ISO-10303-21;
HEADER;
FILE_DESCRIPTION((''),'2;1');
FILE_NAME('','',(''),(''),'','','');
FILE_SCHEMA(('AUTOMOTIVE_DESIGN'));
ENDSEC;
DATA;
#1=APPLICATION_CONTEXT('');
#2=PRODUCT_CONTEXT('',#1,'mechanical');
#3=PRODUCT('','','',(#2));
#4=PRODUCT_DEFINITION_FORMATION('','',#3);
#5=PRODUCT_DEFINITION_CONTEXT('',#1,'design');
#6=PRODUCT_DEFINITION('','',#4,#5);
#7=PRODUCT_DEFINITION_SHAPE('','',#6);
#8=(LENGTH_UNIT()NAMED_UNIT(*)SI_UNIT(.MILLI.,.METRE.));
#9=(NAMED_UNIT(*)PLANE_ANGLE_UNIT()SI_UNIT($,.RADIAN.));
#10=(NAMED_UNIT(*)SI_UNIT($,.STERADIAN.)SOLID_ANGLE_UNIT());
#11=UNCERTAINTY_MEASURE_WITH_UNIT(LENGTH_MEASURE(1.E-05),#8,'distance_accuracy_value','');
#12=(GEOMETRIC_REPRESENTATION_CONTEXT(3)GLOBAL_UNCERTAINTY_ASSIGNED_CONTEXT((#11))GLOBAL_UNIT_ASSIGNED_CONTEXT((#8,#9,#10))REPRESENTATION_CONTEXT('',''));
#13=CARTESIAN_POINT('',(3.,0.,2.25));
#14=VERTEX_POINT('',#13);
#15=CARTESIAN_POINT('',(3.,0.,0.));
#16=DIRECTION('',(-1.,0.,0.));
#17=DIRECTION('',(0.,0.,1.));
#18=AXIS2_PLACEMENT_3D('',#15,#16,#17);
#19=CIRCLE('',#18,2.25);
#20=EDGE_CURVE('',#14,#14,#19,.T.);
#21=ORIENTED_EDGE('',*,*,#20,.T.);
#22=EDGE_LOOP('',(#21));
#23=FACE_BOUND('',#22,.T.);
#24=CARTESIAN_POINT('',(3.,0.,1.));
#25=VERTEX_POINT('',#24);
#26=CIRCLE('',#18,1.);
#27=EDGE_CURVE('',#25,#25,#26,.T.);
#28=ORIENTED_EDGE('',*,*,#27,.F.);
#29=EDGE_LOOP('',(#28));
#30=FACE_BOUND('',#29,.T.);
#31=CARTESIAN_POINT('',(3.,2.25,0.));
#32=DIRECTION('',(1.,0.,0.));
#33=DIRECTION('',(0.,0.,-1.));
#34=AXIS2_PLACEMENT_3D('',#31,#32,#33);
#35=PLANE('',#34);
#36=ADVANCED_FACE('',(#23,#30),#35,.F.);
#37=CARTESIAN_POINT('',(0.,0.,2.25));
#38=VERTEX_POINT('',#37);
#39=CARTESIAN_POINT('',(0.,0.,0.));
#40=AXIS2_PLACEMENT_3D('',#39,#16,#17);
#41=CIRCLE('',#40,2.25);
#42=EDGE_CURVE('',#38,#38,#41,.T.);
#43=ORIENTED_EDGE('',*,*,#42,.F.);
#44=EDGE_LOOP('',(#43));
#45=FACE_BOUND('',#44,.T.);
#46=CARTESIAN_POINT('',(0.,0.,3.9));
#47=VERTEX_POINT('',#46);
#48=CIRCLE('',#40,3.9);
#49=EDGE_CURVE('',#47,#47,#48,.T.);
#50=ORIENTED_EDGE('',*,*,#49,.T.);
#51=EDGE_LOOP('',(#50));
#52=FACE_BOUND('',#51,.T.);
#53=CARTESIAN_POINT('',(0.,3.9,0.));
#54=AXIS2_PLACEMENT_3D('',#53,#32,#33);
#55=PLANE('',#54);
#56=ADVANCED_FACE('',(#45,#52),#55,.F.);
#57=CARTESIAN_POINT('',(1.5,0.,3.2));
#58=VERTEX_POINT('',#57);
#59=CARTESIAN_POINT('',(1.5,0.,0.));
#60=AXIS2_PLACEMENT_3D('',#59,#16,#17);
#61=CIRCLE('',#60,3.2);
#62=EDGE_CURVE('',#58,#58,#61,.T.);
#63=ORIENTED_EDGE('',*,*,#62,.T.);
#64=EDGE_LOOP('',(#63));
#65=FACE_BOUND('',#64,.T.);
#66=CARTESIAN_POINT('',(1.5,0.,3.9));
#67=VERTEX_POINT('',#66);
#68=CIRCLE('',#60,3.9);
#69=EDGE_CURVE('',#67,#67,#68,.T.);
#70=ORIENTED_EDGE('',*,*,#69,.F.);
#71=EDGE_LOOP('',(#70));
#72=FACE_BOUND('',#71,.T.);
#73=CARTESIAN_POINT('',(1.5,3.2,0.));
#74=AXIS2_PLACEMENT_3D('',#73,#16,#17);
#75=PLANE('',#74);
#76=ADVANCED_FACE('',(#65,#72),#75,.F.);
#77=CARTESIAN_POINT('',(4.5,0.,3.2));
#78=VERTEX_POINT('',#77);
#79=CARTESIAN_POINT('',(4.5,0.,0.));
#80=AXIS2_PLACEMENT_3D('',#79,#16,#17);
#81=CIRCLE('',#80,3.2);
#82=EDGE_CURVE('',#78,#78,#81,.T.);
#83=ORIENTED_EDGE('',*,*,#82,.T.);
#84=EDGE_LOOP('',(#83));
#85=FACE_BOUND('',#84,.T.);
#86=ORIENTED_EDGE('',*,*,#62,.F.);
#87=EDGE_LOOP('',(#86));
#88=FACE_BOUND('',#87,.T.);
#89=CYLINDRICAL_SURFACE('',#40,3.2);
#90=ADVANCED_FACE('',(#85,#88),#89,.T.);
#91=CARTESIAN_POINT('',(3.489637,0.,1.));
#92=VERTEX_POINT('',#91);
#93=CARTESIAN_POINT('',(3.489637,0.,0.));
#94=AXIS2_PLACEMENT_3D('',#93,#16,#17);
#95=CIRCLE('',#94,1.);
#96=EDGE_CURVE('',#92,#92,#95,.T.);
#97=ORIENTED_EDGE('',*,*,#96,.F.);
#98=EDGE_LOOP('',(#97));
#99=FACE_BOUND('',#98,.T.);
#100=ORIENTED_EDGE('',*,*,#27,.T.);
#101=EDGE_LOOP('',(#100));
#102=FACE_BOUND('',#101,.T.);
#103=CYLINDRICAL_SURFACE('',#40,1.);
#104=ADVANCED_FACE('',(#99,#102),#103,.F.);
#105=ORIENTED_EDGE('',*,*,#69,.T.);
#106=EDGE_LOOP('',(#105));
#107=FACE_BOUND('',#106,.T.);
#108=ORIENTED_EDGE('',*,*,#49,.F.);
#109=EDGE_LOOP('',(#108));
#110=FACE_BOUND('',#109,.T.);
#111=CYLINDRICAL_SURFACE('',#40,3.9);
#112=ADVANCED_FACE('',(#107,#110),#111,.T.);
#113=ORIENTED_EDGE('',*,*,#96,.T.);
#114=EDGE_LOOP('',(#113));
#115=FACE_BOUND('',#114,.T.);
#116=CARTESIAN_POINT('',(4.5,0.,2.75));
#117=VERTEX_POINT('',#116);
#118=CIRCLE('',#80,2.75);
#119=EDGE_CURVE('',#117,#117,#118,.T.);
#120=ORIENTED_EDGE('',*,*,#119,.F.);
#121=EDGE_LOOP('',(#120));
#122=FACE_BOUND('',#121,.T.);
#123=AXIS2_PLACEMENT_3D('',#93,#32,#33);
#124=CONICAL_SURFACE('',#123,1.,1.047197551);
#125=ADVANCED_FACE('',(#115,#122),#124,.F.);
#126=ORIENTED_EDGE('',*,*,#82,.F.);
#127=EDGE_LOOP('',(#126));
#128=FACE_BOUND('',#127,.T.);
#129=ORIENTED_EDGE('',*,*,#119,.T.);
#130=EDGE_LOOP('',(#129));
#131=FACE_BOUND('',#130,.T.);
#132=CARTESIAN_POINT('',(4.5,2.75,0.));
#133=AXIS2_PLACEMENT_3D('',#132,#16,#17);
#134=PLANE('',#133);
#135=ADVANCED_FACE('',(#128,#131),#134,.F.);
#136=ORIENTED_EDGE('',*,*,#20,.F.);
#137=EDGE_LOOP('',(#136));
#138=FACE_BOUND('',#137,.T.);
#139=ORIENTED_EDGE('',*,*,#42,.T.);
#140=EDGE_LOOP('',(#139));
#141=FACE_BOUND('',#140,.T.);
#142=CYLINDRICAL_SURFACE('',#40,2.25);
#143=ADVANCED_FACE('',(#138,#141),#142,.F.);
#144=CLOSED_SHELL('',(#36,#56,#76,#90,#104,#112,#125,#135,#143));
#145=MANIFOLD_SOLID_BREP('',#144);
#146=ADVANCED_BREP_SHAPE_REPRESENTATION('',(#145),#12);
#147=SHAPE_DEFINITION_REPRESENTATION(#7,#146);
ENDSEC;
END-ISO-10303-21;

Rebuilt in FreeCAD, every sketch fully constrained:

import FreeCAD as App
import Part
import Sketcher
from FreeCAD import Vector
Q = App.Units.Quantity


def add_polygon(sketch, points):
    """Adds a closed chain of lines whose ends are joined by coincident constraints."""
    first, n = sketch.GeometryCount, len(points)
    for a, b in zip(points, points[1:] + points[:1]):
        sketch.addGeometry(Part.LineSegment(App.Vector(*a, 0), App.Vector(*b, 0)), False)
    for i in range(n):
        sketch.addConstraint(Sketcher.Constraint("Coincident", first + i, 2, first + (i + 1) % n, 1))

doc = App.newDocument("Part")
body = doc.addObject("PartDesign::Body", "Body")

# Sketch on XY plane
sketch1 = body.newObject("Sketcher::SketchObject", "Sketch")
sketch1.AttachmentSupport = (doc.getObject("XY_Plane"), [""])
sketch1.MapMode = "FlatFace"
add_polygon(sketch1, [(0, 2.25), (3, 2.25), (3, 1), (3.489637, 1), (4.5, 2.75), (4.5, 3.2), (1.5, 3.2), (1.5, 3.9), (0, 3.9)])  # lines 0-8
sketch1.addConstraint(Sketcher.Constraint("Horizontal", 0))
sketch1.addConstraint(Sketcher.Constraint("Vertical", 1))
sketch1.addConstraint(Sketcher.Constraint("Horizontal", 2))
sketch1.addConstraint(Sketcher.Constraint("Vertical", 4))
sketch1.addConstraint(Sketcher.Constraint("Horizontal", 5))
sketch1.addConstraint(Sketcher.Constraint("Vertical", 6))
sketch1.addConstraint(Sketcher.Constraint("Horizontal", 7))
sketch1.addConstraint(Sketcher.Constraint("Vertical", 8))
sketch1.addConstraint(Sketcher.Constraint("PointOnObject", 7, 2, -2))
sketch1.addConstraint(Sketcher.Constraint("Equal", 0, 5))
sketch1.addConstraint(Sketcher.Constraint("DistanceX", 0, 1, 0, 2, Q("3 mm")))
sketch1.addConstraint(Sketcher.Constraint("Angle", 3, Q("60 deg")))
sketch1.addConstraint(Sketcher.Constraint("DistanceX", 7, 2, 7, 1, Q("1.5 mm")))
sketch1.addConstraint(Sketcher.Constraint("DistanceY", 6, 1, 6, 2, Q("0.7 mm")))
sketch1.addConstraint(Sketcher.Constraint("DistanceY", -1, 1, 1, 2, Q("1 mm")))
sketch1.addConstraint(Sketcher.Constraint("DistanceY", 1, 2, 1, 1, Q("1.25 mm")))
sketch1.addConstraint(Sketcher.Constraint("DistanceY", 4, 1, 4, 2, Q("0.45 mm")))
sketch1.addConstraint(Sketcher.Constraint("DistanceY", 8, 2, 8, 1, Q("1.65 mm")))
revolution = body.newObject("PartDesign::Revolution", "Revolution")
revolution.Profile = sketch1
revolution.ReferenceAxis = (sketch1, ["H_Axis"])
revolution.Angle = 360

doc.recompute()
